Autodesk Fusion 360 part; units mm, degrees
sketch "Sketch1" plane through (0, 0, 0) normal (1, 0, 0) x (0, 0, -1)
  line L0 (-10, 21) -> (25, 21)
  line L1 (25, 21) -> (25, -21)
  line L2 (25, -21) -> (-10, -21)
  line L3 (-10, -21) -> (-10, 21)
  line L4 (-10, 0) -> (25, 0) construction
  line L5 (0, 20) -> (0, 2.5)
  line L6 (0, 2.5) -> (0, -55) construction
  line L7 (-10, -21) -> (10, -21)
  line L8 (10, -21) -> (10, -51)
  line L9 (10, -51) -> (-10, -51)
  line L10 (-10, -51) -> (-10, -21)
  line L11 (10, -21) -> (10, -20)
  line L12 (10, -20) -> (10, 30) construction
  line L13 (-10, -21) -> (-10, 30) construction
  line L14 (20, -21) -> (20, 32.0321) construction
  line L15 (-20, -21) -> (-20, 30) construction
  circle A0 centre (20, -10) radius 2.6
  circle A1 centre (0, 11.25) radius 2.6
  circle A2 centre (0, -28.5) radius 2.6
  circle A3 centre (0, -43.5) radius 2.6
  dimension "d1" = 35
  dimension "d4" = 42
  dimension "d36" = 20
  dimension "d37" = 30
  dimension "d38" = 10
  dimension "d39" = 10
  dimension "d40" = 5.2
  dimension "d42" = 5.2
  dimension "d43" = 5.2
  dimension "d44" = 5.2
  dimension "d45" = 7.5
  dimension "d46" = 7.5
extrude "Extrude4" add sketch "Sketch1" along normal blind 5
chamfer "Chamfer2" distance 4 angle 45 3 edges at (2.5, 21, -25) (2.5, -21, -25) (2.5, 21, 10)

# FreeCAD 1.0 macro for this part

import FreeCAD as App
import Part
import Sketcher


def edges_at(feature, points):
    """Names of the edges that pass closest to the given points."""
    edges = feature.Shape.Edges
    near = lambda p: min(range(len(edges)), key=lambda i: edges[i].distToShape(Part.Vertex(*p))[0])
    return sorted({f"Edge{near(p) + 1}" for p in points})


def add_polygon(sketch, points):
    """Adds a closed chain of lines whose ends are joined by coincident constraints."""
    first, n = sketch.GeometryCount, len(points)
    for a, b in zip(points, points[1:] + points[:1]):
        sketch.addGeometry(Part.LineSegment(App.Vector(*a, 0), App.Vector(*b, 0)), False)
    for i in range(n):
        sketch.addConstraint(Sketcher.Constraint("Coincident", first + i, 2, first + (i + 1) % n, 1))

doc = App.newDocument("Part")
body = doc.addObject("PartDesign::Body", "Body")

sketch1 = body.newObject("Sketcher::SketchObject", "Sketch")
sketch1.AttachmentSupport = (doc.getObject("YZ_Plane"), [""])
sketch1.MapMode = "FlatFace"
add_polygon(sketch1, [(21, -25), (21, 10), (-51, 10), (-51, -10), (-21, -10), (-21, -25)])
sketch1.addGeometry(Part.Circle(App.Vector(11.25, 0, 0), App.Vector(0, 0, 1), 2.6), False)
sketch1.addGeometry(Part.Circle(App.Vector(-10, -20, 0), App.Vector(0, 0, 1), 2.6), False)
sketch1.addGeometry(Part.Circle(App.Vector(-28.5, 0, 0), App.Vector(0, 0, 1), 2.6), False)
sketch1.addGeometry(Part.Circle(App.Vector(-43.5, 0, 0), App.Vector(0, 0, 1), 2.6), False)
sketch1.addConstraint(Sketcher.Constraint("Vertical", 0))
sketch1.addConstraint(Sketcher.Constraint("Horizontal", 1))
sketch1.addConstraint(Sketcher.Constraint("Vertical", 2))
sketch1.addConstraint(Sketcher.Constraint("Horizontal", 3))
sketch1.addConstraint(Sketcher.Constraint("Vertical", 4))
sketch1.addConstraint(Sketcher.Constraint("Horizontal", 5))
sketch1.addConstraint(Sketcher.Constraint("Equal", 6, 7))
sketch1.addConstraint(Sketcher.Constraint("Equal", 7, 8))
sketch1.addConstraint(Sketcher.Constraint("Equal", 8, 9))
sketch1.addConstraint(Sketcher.Constraint("Symmetric", 0, 2, 3, 2, -1, 1))
sketch1.addConstraint(Sketcher.Constraint("PointOnObject", 6, 3, -1))
sketch1.addConstraint(Sketcher.Constraint("PointOnObject", 8, 3, -1))
sketch1.addConstraint(Sketcher.Constraint("PointOnObject", 9, 3, -1))
sketch1.addConstraint(Sketcher.Constraint("Diameter", 6, 5.2))
sketch1.addConstraint(Sketcher.Constraint("DistanceX", 3, 1, 3, 2, 30.0))
sketch1.addConstraint(Sketcher.Constraint("DistanceX", 5, 1, 5, 2, 42.0))
sketch1.addConstraint(Sketcher.Constraint("DistanceY", 0, 1, 0, 2, 35.0))
sketch1.addConstraint(Sketcher.Constraint("DistanceY", 2, 2, 2, 1, 20.0))
sketch1.addConstraint(Sketcher.Constraint("DistanceX", 7, 3, -1, 1, 10.0))
sketch1.addConstraint(Sketcher.Constraint("DistanceY", 7, 3, -1, 1, 20.0))
sketch1.addConstraint(Sketcher.Constraint("DistanceX", 1, 2, 9, 3, 7.5))
sketch1.addConstraint(Sketcher.Constraint("DistanceX", 8, 3, 3, 2, 7.5))
sketch1.addConstraint(Sketcher.Constraint("DistanceX", -1, 1, 6, 3, 11.25))
pad1 = body.newObject("PartDesign::Pad", "Pad")
pad1.Profile = sketch1
pad1.Length = 5
doc.recompute()

chamfer = body.newObject("PartDesign::Chamfer", "Chamfer")
chamfer.Base = (pad1, edges_at(pad1, [(2.5, 21, -25), (2.5, -21, -25), (2.5, 21, 10)]))
chamfer.Size = 4

doc.recompute()
